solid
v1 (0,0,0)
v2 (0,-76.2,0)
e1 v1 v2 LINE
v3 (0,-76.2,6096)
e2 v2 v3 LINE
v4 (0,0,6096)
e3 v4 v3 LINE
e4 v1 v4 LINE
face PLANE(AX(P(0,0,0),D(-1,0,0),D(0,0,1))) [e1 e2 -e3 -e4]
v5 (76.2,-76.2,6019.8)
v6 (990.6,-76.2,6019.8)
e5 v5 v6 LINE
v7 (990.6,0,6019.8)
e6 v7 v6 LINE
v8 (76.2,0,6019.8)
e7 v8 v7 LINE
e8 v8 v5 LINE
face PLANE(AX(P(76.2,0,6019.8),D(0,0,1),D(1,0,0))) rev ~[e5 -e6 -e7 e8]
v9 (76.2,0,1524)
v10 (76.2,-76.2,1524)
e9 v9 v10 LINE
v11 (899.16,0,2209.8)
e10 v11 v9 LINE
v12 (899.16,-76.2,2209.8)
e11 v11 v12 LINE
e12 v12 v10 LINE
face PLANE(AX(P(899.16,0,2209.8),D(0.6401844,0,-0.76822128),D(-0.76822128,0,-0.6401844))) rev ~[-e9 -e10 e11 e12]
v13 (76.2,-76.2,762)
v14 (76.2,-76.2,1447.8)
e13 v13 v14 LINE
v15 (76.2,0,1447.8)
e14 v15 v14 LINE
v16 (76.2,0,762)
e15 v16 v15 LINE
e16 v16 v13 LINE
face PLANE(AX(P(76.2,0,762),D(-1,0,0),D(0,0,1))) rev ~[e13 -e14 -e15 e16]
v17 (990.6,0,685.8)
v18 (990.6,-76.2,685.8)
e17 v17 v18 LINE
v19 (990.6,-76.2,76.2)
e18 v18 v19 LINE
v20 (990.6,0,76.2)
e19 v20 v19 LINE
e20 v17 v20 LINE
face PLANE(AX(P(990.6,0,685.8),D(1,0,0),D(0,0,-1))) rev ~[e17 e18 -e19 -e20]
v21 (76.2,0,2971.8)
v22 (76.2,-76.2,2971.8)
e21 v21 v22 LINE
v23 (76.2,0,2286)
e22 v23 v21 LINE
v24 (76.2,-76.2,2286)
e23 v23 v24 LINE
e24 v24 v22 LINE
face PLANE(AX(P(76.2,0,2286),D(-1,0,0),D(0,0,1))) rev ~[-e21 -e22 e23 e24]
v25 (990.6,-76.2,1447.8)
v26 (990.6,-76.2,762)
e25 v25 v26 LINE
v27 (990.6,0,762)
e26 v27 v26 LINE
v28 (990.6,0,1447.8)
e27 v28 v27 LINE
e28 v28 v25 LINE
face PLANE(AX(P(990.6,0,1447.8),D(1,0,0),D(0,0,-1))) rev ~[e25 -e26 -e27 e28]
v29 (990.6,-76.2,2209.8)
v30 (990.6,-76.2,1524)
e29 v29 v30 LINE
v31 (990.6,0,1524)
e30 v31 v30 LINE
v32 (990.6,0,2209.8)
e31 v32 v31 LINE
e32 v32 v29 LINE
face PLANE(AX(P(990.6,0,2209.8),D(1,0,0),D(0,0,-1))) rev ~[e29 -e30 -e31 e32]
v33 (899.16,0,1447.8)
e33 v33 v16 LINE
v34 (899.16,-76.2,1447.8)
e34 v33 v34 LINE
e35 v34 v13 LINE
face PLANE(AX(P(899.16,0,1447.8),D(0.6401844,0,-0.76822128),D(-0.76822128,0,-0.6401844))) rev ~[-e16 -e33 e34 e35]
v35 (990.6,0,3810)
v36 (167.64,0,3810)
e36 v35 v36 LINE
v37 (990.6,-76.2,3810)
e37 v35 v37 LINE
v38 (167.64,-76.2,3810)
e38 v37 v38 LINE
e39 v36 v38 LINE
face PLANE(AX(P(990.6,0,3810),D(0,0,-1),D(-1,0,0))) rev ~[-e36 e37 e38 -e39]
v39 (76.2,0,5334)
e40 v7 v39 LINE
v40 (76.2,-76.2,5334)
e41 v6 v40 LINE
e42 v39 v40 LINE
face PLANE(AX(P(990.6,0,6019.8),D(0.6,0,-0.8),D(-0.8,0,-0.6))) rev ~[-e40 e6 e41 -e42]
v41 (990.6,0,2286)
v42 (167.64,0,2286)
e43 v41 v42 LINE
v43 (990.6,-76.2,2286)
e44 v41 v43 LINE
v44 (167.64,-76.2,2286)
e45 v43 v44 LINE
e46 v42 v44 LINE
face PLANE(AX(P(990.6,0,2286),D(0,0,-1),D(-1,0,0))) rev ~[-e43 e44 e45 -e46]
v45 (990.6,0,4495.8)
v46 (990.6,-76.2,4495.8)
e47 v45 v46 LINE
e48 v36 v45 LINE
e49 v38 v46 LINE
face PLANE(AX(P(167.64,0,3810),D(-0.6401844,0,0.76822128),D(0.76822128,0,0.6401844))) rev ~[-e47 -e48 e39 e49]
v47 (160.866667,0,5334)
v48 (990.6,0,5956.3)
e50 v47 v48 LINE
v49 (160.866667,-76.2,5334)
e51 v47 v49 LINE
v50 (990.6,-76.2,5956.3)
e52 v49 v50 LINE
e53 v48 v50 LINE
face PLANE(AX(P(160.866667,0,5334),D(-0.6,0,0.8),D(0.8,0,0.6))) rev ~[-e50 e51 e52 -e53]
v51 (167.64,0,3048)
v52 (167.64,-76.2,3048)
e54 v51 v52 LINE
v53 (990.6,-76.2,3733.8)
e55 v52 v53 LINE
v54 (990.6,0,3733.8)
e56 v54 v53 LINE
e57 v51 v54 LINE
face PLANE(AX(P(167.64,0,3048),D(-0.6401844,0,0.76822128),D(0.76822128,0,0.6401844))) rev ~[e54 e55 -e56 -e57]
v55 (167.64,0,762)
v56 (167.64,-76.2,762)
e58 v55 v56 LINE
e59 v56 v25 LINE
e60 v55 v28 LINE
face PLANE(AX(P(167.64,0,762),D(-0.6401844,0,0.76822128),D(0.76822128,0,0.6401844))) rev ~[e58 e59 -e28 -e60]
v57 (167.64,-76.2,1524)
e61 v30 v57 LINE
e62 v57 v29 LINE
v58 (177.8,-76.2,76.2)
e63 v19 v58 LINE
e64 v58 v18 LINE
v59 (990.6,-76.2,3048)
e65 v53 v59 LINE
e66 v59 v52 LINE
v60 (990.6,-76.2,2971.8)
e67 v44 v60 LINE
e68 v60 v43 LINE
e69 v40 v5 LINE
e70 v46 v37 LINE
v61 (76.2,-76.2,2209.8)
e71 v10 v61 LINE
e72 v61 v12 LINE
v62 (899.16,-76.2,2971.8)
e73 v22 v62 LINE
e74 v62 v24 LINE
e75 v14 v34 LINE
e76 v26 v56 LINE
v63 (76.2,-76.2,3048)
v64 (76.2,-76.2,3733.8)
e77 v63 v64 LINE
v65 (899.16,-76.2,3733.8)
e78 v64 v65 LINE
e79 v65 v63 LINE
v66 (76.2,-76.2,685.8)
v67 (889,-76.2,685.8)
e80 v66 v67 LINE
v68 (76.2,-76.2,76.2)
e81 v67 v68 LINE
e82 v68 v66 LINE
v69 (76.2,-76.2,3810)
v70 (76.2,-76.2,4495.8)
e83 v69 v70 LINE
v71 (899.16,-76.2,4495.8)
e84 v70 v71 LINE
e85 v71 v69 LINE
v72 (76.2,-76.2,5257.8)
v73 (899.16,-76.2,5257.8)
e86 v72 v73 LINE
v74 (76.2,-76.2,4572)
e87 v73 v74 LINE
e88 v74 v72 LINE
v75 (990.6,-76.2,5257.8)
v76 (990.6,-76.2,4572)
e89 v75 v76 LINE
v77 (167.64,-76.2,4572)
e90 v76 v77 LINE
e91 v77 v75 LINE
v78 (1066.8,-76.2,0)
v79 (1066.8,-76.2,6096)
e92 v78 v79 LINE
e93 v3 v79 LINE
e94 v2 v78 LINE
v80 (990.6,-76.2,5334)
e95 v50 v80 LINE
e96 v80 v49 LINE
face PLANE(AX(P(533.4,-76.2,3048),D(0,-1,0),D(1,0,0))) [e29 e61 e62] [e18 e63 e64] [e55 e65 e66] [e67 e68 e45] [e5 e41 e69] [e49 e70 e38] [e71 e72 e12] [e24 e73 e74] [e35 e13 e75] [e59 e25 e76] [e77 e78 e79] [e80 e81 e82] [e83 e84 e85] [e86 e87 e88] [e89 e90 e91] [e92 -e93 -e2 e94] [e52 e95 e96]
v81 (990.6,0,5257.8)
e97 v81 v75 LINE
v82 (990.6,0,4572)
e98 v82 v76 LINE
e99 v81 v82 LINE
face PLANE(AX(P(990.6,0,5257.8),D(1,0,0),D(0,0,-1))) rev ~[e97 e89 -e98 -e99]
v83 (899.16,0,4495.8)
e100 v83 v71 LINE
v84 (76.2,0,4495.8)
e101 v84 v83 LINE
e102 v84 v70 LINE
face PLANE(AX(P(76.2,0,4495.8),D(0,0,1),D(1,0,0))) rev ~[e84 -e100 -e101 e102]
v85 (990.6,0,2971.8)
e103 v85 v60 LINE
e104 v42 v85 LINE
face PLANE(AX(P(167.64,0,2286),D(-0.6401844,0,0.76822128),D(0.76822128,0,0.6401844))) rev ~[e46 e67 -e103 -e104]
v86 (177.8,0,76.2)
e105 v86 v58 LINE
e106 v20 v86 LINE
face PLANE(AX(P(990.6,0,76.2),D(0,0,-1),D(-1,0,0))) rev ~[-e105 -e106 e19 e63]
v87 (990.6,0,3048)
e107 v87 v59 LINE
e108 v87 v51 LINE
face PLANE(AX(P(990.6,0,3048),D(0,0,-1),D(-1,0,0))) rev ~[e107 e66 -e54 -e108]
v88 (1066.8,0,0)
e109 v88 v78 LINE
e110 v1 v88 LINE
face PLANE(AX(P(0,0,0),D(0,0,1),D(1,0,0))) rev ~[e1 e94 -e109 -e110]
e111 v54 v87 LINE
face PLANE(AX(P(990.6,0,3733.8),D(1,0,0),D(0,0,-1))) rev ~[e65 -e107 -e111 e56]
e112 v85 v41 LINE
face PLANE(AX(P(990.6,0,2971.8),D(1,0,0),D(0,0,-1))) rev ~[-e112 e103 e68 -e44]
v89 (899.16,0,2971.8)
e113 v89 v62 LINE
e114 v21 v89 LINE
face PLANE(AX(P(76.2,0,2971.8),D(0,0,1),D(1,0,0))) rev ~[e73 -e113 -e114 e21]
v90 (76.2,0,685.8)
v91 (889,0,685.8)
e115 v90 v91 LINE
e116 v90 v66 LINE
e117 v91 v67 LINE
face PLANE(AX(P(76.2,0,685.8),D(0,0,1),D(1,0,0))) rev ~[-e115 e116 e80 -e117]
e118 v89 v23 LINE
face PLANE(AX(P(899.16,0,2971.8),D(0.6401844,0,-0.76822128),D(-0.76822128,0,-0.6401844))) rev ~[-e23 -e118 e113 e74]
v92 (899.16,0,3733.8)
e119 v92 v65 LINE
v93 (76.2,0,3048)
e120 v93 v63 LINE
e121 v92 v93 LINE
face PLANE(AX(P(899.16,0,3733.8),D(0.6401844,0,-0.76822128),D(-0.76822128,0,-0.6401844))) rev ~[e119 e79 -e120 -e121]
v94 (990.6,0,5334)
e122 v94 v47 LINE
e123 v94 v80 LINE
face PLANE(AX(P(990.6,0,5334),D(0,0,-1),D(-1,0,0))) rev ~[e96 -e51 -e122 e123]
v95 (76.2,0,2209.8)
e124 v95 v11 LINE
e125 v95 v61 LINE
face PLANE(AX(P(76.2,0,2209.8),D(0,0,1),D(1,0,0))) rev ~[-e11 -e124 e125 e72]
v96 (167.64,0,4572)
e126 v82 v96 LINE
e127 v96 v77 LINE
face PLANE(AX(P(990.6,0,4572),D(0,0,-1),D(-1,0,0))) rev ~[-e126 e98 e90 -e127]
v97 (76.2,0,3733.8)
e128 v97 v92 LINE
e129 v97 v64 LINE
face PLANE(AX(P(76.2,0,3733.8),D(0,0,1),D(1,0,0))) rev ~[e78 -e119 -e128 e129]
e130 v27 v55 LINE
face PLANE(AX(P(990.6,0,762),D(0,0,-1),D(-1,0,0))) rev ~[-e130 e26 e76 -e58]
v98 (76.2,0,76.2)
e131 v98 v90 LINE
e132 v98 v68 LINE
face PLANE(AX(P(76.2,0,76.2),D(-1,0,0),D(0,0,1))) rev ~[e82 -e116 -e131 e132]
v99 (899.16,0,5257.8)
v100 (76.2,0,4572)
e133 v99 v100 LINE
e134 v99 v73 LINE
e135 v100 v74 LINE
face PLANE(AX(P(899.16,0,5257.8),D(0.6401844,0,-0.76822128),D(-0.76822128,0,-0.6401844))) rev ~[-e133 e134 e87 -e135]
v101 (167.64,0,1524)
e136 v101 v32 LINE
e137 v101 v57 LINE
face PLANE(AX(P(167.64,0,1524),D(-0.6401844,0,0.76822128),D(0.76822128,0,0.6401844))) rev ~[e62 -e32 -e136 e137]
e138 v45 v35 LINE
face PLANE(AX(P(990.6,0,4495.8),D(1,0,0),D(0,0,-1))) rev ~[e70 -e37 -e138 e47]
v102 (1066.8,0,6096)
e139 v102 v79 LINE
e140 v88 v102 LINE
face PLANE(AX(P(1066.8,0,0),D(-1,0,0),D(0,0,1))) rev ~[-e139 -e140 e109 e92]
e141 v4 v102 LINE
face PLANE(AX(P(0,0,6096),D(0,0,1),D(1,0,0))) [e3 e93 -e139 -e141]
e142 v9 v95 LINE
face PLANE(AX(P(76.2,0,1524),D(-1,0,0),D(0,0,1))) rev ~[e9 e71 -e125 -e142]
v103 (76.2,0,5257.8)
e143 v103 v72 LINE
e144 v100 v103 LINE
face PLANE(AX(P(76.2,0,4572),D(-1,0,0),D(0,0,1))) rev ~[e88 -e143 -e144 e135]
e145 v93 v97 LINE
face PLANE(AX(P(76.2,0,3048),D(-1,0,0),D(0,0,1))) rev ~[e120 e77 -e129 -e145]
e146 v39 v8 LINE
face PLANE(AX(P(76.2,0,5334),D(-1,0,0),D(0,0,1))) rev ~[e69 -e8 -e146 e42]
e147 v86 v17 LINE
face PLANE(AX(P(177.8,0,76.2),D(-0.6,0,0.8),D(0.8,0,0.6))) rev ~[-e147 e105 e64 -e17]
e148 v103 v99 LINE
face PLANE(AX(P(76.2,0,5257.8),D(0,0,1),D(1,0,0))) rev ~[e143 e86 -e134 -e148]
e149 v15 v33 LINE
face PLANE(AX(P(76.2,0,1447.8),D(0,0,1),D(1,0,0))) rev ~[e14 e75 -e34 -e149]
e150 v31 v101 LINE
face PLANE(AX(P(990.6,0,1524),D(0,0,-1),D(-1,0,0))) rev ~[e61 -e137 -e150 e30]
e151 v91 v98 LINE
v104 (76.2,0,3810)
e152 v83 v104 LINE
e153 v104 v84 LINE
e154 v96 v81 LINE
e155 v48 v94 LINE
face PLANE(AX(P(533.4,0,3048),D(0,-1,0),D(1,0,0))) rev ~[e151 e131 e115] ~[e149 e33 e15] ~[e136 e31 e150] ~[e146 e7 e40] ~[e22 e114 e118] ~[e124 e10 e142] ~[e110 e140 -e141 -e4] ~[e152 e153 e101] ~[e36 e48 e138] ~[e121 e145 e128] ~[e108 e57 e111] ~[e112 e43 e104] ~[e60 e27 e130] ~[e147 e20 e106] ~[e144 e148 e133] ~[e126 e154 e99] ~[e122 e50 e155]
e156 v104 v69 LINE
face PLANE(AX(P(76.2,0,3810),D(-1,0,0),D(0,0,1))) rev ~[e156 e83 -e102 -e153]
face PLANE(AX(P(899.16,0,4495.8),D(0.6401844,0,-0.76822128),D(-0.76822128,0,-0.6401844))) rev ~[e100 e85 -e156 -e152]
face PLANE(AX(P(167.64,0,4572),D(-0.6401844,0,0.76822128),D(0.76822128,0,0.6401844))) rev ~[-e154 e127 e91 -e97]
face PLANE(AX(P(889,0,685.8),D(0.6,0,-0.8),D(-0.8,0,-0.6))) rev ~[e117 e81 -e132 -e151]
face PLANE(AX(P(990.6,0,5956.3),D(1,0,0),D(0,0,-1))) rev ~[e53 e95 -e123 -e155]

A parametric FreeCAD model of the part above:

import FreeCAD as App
import Part
import Sketcher

V = App.Vector
Q = App.Units.Quantity


def add_polygon(sketch, points):
    """Adds a closed chain of lines whose ends are joined by coincident constraints."""
    first, n = sketch.GeometryCount, len(points)
    for a, b in zip(points, points[1:] + points[:1]):
        sketch.addGeometry(Part.LineSegment(App.Vector(*a, 0), App.Vector(*b, 0)), False)
    for i in range(n):
        sketch.addConstraint(Sketcher.Constraint("Coincident", first + i, 2, first + (i + 1) % n, 1))

doc = App.newDocument("Part")
body = doc.addObject("PartDesign::Body", "Body")

sketch1 = body.newObject("Sketcher::SketchObject", "Sketch")
sketch1.AttachmentSupport = (doc.getObject("XZ_Plane"), [""])
sketch1.MapMode = "FlatFace"
add_polygon(sketch1, [(0, 6096), (0, 0), (1066.8, 0), (1066.8, 6096)])
add_polygon(sketch1, [(76.2, 685.8), (889, 685.8), (76.2, 76.2)])
add_polygon(sketch1, [(76.2, 1447.8), (899.16, 1447.8), (76.2, 762)])
add_polygon(sketch1, [(76.2, 2209.8), (899.16, 2209.8), (76.2, 1524)])
add_polygon(sketch1, [(76.2, 2971.8), (899.16, 2971.8), (76.2, 2286)])
add_polygon(sketch1, [(990.6, 685.8), (990.6, 76.2), (177.8, 76.2)])
add_polygon(sketch1, [(167.64, 762), (990.6, 1447.8), (990.6, 762)])
add_polygon(sketch1, [(167.64, 1524), (990.6, 2209.8), (990.6, 1524)])
add_polygon(sketch1, [(167.64, 2286), (990.6, 2971.8), (990.6, 2286)])
add_polygon(sketch1, [(76.2, 3733.8), (899.16, 3733.8), (76.2, 3048)])
add_polygon(sketch1, [(76.2, 4495.8), (899.16, 4495.8), (76.2, 3810)])
add_polygon(sketch1, [(76.2, 5257.8), (899.16, 5257.8), (76.2, 4572)])
add_polygon(sketch1, [(990.6, 6019.8), (76.2, 5334), (76.2, 6019.8)])
add_polygon(sketch1, [(167.64, 3048), (990.6, 3733.8), (990.6, 3048)])
add_polygon(sketch1, [(167.64, 3810), (990.6, 4495.8), (990.6, 3810)])
add_polygon(sketch1, [(167.64, 4572), (990.6, 5257.8), (990.6, 4572)])
add_polygon(sketch1, [(160.866667, 5334), (990.6, 5956.3), (990.6, 5334)])
sketch1.addConstraint([
    Sketcher.Constraint("Vertical", 0),
    Sketcher.Constraint("Horizontal", 1),
    Sketcher.Constraint("Vertical", 2),
    Sketcher.Constraint("Horizontal", 3),
    Sketcher.Constraint("Horizontal", 4),
    Sketcher.Constraint("Vertical", 6),
    Sketcher.Constraint("Horizontal", 7),
    Sketcher.Constraint("Vertical", 9),
    Sketcher.Constraint("Horizontal", 10),
    Sketcher.Constraint("Vertical", 12),
    Sketcher.Constraint("Horizontal", 13),
    Sketcher.Constraint("Vertical", 15),
    Sketcher.Constraint("Vertical", 16),
    Sketcher.Constraint("Horizontal", 17),
    Sketcher.Constraint("Vertical", 20),
    Sketcher.Constraint("Horizontal", 21),
    Sketcher.Constraint("Vertical", 23),
    Sketcher.Constraint("Horizontal", 24),
    Sketcher.Constraint("Vertical", 26),
    Sketcher.Constraint("Horizontal", 27),
    Sketcher.Constraint("Horizontal", 28),
    Sketcher.Constraint("Vertical", 30),
    Sketcher.Constraint("Horizontal", 31),
    Sketcher.Constraint("Vertical", 33),
    Sketcher.Constraint("Horizontal", 34),
    Sketcher.Constraint("Vertical", 36),
    Sketcher.Constraint("Vertical", 38),
    Sketcher.Constraint("Horizontal", 39),
    Sketcher.Constraint("Vertical", 41),
    Sketcher.Constraint("Horizontal", 42),
    Sketcher.Constraint("Vertical", 44),
    Sketcher.Constraint("Horizontal", 45),
    Sketcher.Constraint("Vertical", 47),
    Sketcher.Constraint("Horizontal", 48),
    Sketcher.Constraint("Vertical", 50),
    Sketcher.Constraint("Horizontal", 51),
    Sketcher.Constraint("Coincident", 0, 2, -1, 1),
    Sketcher.Constraint("Parallel", 8, 11),
    Sketcher.Constraint("Parallel", 11, 14),
    Sketcher.Constraint("Parallel", 5, 18),
    Sketcher.Constraint("Parallel", 14, 19),
    Sketcher.Constraint("Parallel", 19, 22),
    Sketcher.Constraint("Parallel", 22, 25),
    Sketcher.Constraint("Parallel", 25, 29),
    Sketcher.Constraint("Parallel", 29, 32),
    Sketcher.Constraint("Parallel", 32, 35),
    Sketcher.Constraint("Parallel", 18, 37),
    Sketcher.Constraint("Parallel", 35, 40),
    Sketcher.Constraint("Parallel", 40, 43),
    Sketcher.Constraint("Parallel", 43, 46),
    Sketcher.Constraint("Parallel", 37, 49),
    Sketcher.Constraint("Horizontal", 5, 2, 16, 2),
    Sketcher.Constraint("Horizontal", 6, 2, 18, 2),
    Sketcher.Constraint("Horizontal", 9, 2, 19, 2),
    Sketcher.Constraint("Horizontal", 8, 2, 20, 2),
    Sketcher.Constraint("Horizontal", 12, 2, 22, 2),
    Sketcher.Constraint("Horizontal", 11, 2, 23, 2),
    Sketcher.Constraint("Horizontal", 15, 2, 25, 2),
    Sketcher.Constraint("Horizontal", 14, 2, 26, 2),
    Sketcher.Constraint("Horizontal", 30, 2, 40, 2),
    Sketcher.Constraint("Horizontal", 29, 2, 41, 2),
    Sketcher.Constraint("Horizontal", 33, 2, 43, 2),
    Sketcher.Constraint("Horizontal", 32, 2, 44, 2),
    Sketcher.Constraint("Horizontal", 36, 2, 46, 2),
    Sketcher.Constraint("Horizontal", 35, 2, 47, 2),
    Sketcher.Constraint("Horizontal", 37, 2, 50, 2),
    Sketcher.Constraint("Vertical", 6, 2, 8, 2),
    Sketcher.Constraint("Vertical", 7, 2, 10, 2),
    Sketcher.Constraint("Vertical", 9, 2, 11, 2),
    Sketcher.Constraint("Vertical", 10, 2, 13, 2),
    Sketcher.Constraint("Vertical", 12, 2, 14, 2),
    Sketcher.Constraint("Vertical", 18, 2, 19, 2),
    Sketcher.Constraint("Vertical", 20, 2, 22, 2),
    Sketcher.Constraint("Vertical", 23, 2, 25, 2),
    Sketcher.Constraint("Vertical", 13, 2, 28, 2),
    Sketcher.Constraint("Vertical", 15, 2, 29, 2),
    Sketcher.Constraint("Vertical", 28, 2, 31, 2),
    Sketcher.Constraint("Vertical", 30, 2, 32, 2),
    Sketcher.Constraint("Vertical", 31, 2, 34, 2),
    Sketcher.Constraint("Vertical", 33, 2, 35, 2),
    Sketcher.Constraint("Vertical", 36, 2, 37, 2),
    Sketcher.Constraint("Vertical", 26, 2, 39, 2),
    Sketcher.Constraint("Vertical", 39, 2, 40, 2),
    Sketcher.Constraint("Vertical", 41, 2, 43, 2),
    Sketcher.Constraint("Vertical", 44, 2, 46, 2),
    Sketcher.Constraint("Vertical", 47, 2, 49, 2),
    Sketcher.Constraint("Equal", 36, 38),
    Sketcher.Constraint("DistanceX", 1, 1, 1, 2, Q("42 in")),
    Sketcher.Constraint("DistanceX", 4, 1, 4, 2, Q("32 in")),
    Sketcher.Constraint("DistanceX", 39, 1, 39, 2, Q("36 in")),
    Sketcher.Constraint("DistanceY", 0, 2, 0, 1, Q("240 in")),
    Sketcher.Constraint("DistanceY", 6, 1, 6, 2, Q("24 in")),
    Sketcher.Constraint("DistanceX", 7, 1, 7, 2, Q("32.4 in")),
    Sketcher.Constraint("DistanceY", 50, 2, 50, 1, Q("24.5 in")),
    Sketcher.Constraint("DistanceX", -1, 1, 4, 2, Q("35 in")),
    Sketcher.Constraint("DistanceY", -1, 1, 4, 2, Q("27 in")),
    Sketcher.Constraint("DistanceY", -1, 1, 7, 2, Q("57 in")),
    Sketcher.Constraint("DistanceY", -1, 1, 10, 2, Q("87 in")),
    Sketcher.Constraint("DistanceY", -1, 1, 13, 2, Q("117 in")),
    Sketcher.Constraint("DistanceY", -1, 1, 28, 2, Q("147 in")),
    Sketcher.Constraint("DistanceY", -1, 1, 31, 2, Q("177 in")),
    Sketcher.Constraint("DistanceY", -1, 1, 34, 2, Q("207 in")),
    Sketcher.Constraint("DistanceY", -1, 1, 37, 2, Q("210 in")),
])
pad1 = body.newObject("PartDesign::Pad", "Pad")
pad1.Profile = sketch1
pad1.Length = Q("3 in")

doc.recompute()
